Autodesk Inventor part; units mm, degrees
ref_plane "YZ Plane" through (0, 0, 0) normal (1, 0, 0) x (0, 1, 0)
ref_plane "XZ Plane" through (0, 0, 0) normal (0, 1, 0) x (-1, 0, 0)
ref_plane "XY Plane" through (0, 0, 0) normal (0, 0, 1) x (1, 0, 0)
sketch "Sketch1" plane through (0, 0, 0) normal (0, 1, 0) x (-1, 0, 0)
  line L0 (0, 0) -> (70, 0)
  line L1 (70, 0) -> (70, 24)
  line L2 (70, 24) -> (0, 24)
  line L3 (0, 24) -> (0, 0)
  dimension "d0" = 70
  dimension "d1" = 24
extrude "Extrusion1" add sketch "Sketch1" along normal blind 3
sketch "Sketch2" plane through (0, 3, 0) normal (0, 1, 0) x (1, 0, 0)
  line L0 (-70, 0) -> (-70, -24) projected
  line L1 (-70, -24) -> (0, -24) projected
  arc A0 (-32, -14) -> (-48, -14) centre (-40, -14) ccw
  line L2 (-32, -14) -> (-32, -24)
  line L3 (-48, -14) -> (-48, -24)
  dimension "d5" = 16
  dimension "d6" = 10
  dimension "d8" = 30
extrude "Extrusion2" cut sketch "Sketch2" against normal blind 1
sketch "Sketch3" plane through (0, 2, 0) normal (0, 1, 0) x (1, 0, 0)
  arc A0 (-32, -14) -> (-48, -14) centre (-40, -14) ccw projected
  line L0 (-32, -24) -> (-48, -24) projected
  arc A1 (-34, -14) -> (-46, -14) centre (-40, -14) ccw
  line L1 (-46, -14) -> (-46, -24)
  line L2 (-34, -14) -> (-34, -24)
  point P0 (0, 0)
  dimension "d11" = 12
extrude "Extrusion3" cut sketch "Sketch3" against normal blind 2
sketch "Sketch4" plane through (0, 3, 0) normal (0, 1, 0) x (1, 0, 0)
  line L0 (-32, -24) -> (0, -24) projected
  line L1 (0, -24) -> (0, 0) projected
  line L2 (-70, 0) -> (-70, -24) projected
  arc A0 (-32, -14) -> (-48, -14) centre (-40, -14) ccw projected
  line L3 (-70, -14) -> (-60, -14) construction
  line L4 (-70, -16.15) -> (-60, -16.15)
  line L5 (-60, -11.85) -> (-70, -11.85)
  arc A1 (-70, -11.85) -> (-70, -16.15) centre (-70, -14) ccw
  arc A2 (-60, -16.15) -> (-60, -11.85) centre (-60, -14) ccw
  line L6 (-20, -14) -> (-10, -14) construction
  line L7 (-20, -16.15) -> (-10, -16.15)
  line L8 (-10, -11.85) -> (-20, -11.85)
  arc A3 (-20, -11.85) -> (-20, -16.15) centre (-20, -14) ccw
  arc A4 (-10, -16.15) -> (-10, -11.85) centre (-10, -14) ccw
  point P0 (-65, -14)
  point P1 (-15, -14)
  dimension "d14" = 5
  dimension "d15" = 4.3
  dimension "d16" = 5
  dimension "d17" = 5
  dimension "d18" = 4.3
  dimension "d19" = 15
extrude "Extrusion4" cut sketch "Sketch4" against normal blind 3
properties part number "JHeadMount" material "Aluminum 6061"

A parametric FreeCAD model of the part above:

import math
import FreeCAD as App
import Part
import Sketcher
from FreeCAD import Vector
Q = App.Units.Quantity

doc = App.newDocument("Part")
params = doc.addObject("Spreadsheet::Sheet", "Params")
for row, (alias, value) in enumerate([
    ("sketch1_width", "70 mm"),
    ("sketch1_height", "24 mm"),
    ("pad1_length", "3 mm"),
    ("sketch2_radius", "8 mm"),
    ("sketch2_height", "10 mm"),
    ("pocket1_length", "1 mm"),
    ("sketch3_radius", "6 mm"),
    ("sketch3_height", "10 mm"),
    ("pocket2_length", "2 mm"),
    ("sketch4_radius", "2.15 mm"),
    ("sketch4_width", "10 mm"),
    ("pocket3_length", "3 mm"),
], start=1):
    params.set(f"A{row}", alias)
    params.set(f"B{row}", "=" + value)
    params.setAlias(f"B{row}", alias)

body = doc.addObject("PartDesign::Body", "Body")

sketch1 = body.newObject("Sketcher::SketchObject", "Sketch")
sketch1.AttachmentSupport = (doc.getObject("XZ_Plane"), [""])
sketch1.MapMode = "FlatFace"
sketch1.addGeometry(Part.LineSegment(Vector(0, 24, 0), Vector(0, 0, 0)), False)
sketch1.addGeometry(Part.LineSegment(Vector(0, 0, 0), Vector(-70, 0, 0)), False)
sketch1.addGeometry(Part.LineSegment(Vector(-70, 0, 0), Vector(-70, 24, 0)), False)
sketch1.addGeometry(Part.LineSegment(Vector(-70, 24, 0), Vector(0, 24, 0)), False)
sketch1.addConstraint(Sketcher.Constraint("Coincident", 0, 2, 1, 1))
sketch1.addConstraint(Sketcher.Constraint("Coincident", 1, 2, 2, 1))
sketch1.addConstraint(Sketcher.Constraint("Coincident", 2, 2, 3, 1))
sketch1.addConstraint(Sketcher.Constraint("Coincident", 3, 2, 0, 1))
sketch1.addConstraint(Sketcher.Constraint("Vertical", 0))
sketch1.addConstraint(Sketcher.Constraint("Horizontal", 1))
sketch1.addConstraint(Sketcher.Constraint("Vertical", 2))
sketch1.addConstraint(Sketcher.Constraint("Horizontal", 3))
sketch1.addConstraint(Sketcher.Constraint("Coincident", 0, 2, -1, 1))
sketch1.addConstraint(Sketcher.Constraint("DistanceX", 1, 2, 1, 1, Q("70 mm")))
sketch1.addConstraint(Sketcher.Constraint("DistanceY", 0, 2, 0, 1, Q("24 mm")))
sketch1.setExpression("Constraints[9]", "Params.sketch1_width")
sketch1.setExpression("Constraints[10]", "Params.sketch1_height")
pad1 = body.newObject("PartDesign::Pad", "Pad")
pad1.Profile = sketch1
pad1.setExpression("Length", "Params.pad1_length")
pad1.Reversed = True

sketch2 = body.newObject("Sketcher::SketchObject", "Sketch001")
sketch2.AttachmentSupport = (doc.getObject("XZ_Plane"), [""])
sketch2.MapMode = "FlatFace"
sketch2.AttachmentOffset = App.Placement(Vector(0, 0, -3), App.Rotation())
sketch2.addGeometry(Part.LineSegment(Vector(-48, 14, 0), Vector(-48, 24, 0)), False)
sketch2.addGeometry(Part.LineSegment(Vector(-48, 24, 0), Vector(-32, 24, 0)), False)
sketch2.addGeometry(Part.LineSegment(Vector(-32, 24, 0), Vector(-32, 14, 0)), False)
sketch2.addGeometry(Part.ArcOfCircle(Part.Circle(Vector(-40, 14, 0), Vector(0, 0, 1), 8), math.radians(180), math.radians(360)), False)
sketch2.addConstraint(Sketcher.Constraint("Coincident", 0, 2, 1, 1))
sketch2.addConstraint(Sketcher.Constraint("Coincident", 1, 2, 2, 1))
sketch2.addConstraint(Sketcher.Constraint("Tangent", 2, 2, 3, 2))
sketch2.addConstraint(Sketcher.Constraint("Tangent", 3, 1, 0, 1))
sketch2.addConstraint(Sketcher.Constraint("Vertical", 0))
sketch2.addConstraint(Sketcher.Constraint("Horizontal", 1))
sketch2.addConstraint(Sketcher.Constraint("Vertical", 2))
sketch2.addConstraint(Sketcher.Constraint("Radius", 3, Q("8 mm")))
sketch2.addConstraint(Sketcher.Constraint("DistanceY", 0, 1, 0, 2, Q("10 mm")))
sketch2.addConstraint(Sketcher.Constraint("DistanceX", 3, 3, -1, 1, Q("40 mm")))
sketch2.addConstraint(Sketcher.Constraint("DistanceY", -1, 1, 3, 3, Q("14 mm")))
sketch2.setExpression("Constraints[7]", "Params.sketch2_radius")
sketch2.setExpression("Constraints[8]", "Params.sketch2_height")
pocket1 = body.newObject("PartDesign::Pocket", "Pocket")
pocket1.Profile = sketch2
pocket1.setExpression("Length", "Params.pocket1_length")
pocket1.Reversed = True

sketch3 = body.newObject("Sketcher::SketchObject", "Sketch002")
sketch3.AttachmentSupport = (doc.getObject("XZ_Plane"), [""])
sketch3.MapMode = "FlatFace"
sketch3.AttachmentOffset = App.Placement(Vector(0, 0, -2), App.Rotation())
sketch3.addGeometry(Part.LineSegment(Vector(-46, 24, 0), Vector(-34, 24, 0)), False)
sketch3.addGeometry(Part.LineSegment(Vector(-34, 24, 0), Vector(-34, 14, 0)), False)
sketch3.addGeometry(Part.ArcOfCircle(Part.Circle(Vector(-40, 14, 0), Vector(0, 0, 1), 6), math.radians(180), math.radians(360)), False)
sketch3.addGeometry(Part.LineSegment(Vector(-46, 14, 0), Vector(-46, 24, 0)), False)
sketch3.addConstraint(Sketcher.Constraint("Coincident", 0, 2, 1, 1))
sketch3.addConstraint(Sketcher.Constraint("Tangent", 1, 2, 2, 2))
sketch3.addConstraint(Sketcher.Constraint("Tangent", 2, 1, 3, 1))
sketch3.addConstraint(Sketcher.Constraint("Coincident", 3, 2, 0, 1))
sketch3.addConstraint(Sketcher.Constraint("Horizontal", 0))
sketch3.addConstraint(Sketcher.Constraint("Vertical", 1))
sketch3.addConstraint(Sketcher.Constraint("Vertical", 3))
sketch3.addConstraint(Sketcher.Constraint("Radius", 2, Q("6 mm")))
sketch3.addConstraint(Sketcher.Constraint("DistanceY", 1, 2, 1, 1, Q("10 mm")))
sketch3.addConstraint(Sketcher.Constraint("DistanceX", 2, 3, -1, 1, Q("40 mm")))
sketch3.addConstraint(Sketcher.Constraint("DistanceY", -1, 1, 2, 3, Q("14 mm")))
sketch3.setExpression("Constraints[7]", "Params.sketch3_radius")
sketch3.setExpression("Constraints[8]", "Params.sketch3_height")
pocket2 = body.newObject("PartDesign::Pocket", "Pocket001")
pocket2.Profile = sketch3
pocket2.setExpression("Length", "Params.pocket2_length")
pocket2.Reversed = True

sketch4 = body.newObject("Sketcher::SketchObject", "Sketch003")
sketch4.AttachmentSupport = (doc.getObject("XZ_Plane"), [""])
sketch4.MapMode = "FlatFace"
sketch4.AttachmentOffset = App.Placement(Vector(0, 0, -3), App.Rotation())
sketch4.addGeometry(Part.LineSegment(Vector(-60, 11.8, 0), Vector(-70, 11.8, 0)), False)
sketch4.addGeometry(Part.ArcOfCircle(Part.Circle(Vector(-70, 14, 0), Vector(0, 0, 1), 2.2), math.radians(90), math.radians(270)), False)
sketch4.addGeometry(Part.LineSegment(Vector(-70, 16.1, 0), Vector(-60, 16.1, 0)), False)
sketch4.addGeometry(Part.ArcOfCircle(Part.Circle(Vector(-60, 14, 0), Vector(0, 0, 1), 2.1), math.radians(-90), math.radians(90)), False)
sketch4.addGeometry(Part.ArcOfCircle(Part.Circle(Vector(-20, 14, 0), Vector(0, 0, 1), 2.2), math.radians(90), math.radians(270)), False)
sketch4.addGeometry(Part.LineSegment(Vector(-20, 16.1, 0), Vector(-10, 16.1, 0)), False)
sketch4.addGeometry(Part.ArcOfCircle(Part.Circle(Vector(-10, 14, 0), Vector(0, 0, 1), 2.1), math.radians(-90), math.radians(90)), False)
sketch4.addGeometry(Part.LineSegment(Vector(-10, 11.8, 0), Vector(-20, 11.8, 0)), False)
sketch4.addConstraint(Sketcher.Constraint("Tangent", 0, 2, 1, 2))
sketch4.addConstraint(Sketcher.Constraint("Tangent", 1, 1, 2, 1))
sketch4.addConstraint(Sketcher.Constraint("Tangent", 2, 2, 3, 2))
sketch4.addConstraint(Sketcher.Constraint("Tangent", 3, 1, 0, 1))
sketch4.addConstraint(Sketcher.Constraint("Tangent", 4, 1, 5, 1))
sketch4.addConstraint(Sketcher.Constraint("Tangent", 5, 2, 6, 2))
sketch4.addConstraint(Sketcher.Constraint("Tangent", 6, 1, 7, 1))
sketch4.addConstraint(Sketcher.Constraint("Tangent", 7, 2, 4, 2))
sketch4.addConstraint(Sketcher.Constraint("Horizontal", 0))
sketch4.addConstraint(Sketcher.Constraint("Horizontal", 2))
sketch4.addConstraint(Sketcher.Constraint("Horizontal", 5))
sketch4.addConstraint(Sketcher.Constraint("Horizontal", 7))
sketch4.addConstraint(Sketcher.Constraint("Equal", 3, 4))
sketch4.addConstraint(Sketcher.Constraint("Horizontal", 3, 3, 4, 3))
sketch4.addConstraint(Sketcher.Constraint("Equal", 2, 5))
sketch4.addConstraint(Sketcher.Constraint("Radius", 1, Q("2.15 mm")))
sketch4.addConstraint(Sketcher.Constraint("DistanceX", 0, 2, 0, 1, Q("10 mm")))
sketch4.addConstraint(Sketcher.Constraint("DistanceX", 1, 3, -1, 1, Q("70 mm")))
sketch4.addConstraint(Sketcher.Constraint("DistanceY", -1, 1, 1, 3, Q("14 mm")))
sketch4.addConstraint(Sketcher.Constraint("DistanceX", 4, 3, -1, 1, Q("20 mm")))
sketch4.setExpression("Constraints[15]", "Params.sketch4_radius")
sketch4.setExpression("Constraints[16]", "Params.sketch4_width")
pocket3 = body.newObject("PartDesign::Pocket", "Pocket002")
pocket3.Profile = sketch4
pocket3.setExpression("Length", "Params.pocket3_length")
pocket3.Reversed = True

doc.recompute()
